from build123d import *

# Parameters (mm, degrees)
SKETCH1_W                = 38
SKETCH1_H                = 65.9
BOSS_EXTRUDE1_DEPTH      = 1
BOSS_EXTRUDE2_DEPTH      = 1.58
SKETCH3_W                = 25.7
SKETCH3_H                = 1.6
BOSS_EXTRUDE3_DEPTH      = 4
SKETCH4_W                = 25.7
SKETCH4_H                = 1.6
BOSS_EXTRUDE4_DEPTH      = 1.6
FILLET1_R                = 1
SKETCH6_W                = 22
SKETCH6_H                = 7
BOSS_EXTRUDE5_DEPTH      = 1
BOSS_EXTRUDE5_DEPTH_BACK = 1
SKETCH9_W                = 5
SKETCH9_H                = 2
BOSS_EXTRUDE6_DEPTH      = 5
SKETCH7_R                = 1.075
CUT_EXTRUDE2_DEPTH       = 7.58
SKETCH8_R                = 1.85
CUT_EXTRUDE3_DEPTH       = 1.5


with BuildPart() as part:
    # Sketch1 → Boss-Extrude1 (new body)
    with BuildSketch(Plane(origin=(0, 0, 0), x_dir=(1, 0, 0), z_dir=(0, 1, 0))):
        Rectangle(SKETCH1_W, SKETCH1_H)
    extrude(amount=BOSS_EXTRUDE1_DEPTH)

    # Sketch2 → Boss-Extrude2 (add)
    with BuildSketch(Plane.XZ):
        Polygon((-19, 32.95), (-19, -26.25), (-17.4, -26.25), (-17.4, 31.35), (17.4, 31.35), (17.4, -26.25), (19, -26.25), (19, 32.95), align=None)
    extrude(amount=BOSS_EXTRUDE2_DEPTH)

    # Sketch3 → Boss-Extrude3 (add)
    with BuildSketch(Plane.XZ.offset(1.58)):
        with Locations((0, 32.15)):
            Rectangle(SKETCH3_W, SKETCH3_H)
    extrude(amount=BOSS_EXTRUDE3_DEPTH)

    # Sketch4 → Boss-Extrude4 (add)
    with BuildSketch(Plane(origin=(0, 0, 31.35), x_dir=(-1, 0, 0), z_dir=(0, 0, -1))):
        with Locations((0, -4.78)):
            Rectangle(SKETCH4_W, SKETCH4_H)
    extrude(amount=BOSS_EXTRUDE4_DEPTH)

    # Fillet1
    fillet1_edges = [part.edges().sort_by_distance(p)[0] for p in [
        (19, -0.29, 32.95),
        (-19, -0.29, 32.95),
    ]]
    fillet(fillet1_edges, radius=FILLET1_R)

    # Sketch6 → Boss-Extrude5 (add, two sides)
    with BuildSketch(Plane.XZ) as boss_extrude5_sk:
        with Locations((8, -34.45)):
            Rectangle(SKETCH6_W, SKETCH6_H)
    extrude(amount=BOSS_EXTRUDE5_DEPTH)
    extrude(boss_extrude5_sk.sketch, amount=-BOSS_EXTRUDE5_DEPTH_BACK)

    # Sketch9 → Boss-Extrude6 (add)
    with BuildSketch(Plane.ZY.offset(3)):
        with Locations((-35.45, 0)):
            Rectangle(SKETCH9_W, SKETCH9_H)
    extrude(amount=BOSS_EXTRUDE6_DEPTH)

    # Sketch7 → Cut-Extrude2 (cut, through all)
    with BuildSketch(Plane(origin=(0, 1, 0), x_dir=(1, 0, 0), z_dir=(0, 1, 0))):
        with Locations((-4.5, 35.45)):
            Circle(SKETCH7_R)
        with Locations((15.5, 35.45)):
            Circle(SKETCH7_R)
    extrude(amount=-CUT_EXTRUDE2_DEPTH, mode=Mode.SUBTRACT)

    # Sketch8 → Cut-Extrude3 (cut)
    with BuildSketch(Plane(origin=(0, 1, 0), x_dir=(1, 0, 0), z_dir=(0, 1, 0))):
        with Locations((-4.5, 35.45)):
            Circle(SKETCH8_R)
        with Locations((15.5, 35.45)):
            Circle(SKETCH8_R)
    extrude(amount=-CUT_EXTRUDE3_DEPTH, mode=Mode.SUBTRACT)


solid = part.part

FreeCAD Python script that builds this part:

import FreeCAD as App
import Part
import Sketcher

V = App.Vector


def edges_at(feature, points):
    """Names of the edges that pass closest to the given points."""
    edges = feature.Shape.Edges
    near = lambda p: min(range(len(edges)), key=lambda i: edges[i].distToShape(Part.Vertex(*p))[0])
    return sorted({f"Edge{near(p) + 1}" for p in points})

doc = App.newDocument("Part")
params = doc.addObject("Spreadsheet::Sheet", "Params")
for row, (alias, value) in enumerate([
    ("sketch1_width", "38 mm"),
    ("sketch1_height", "65.9 mm"),
    ("pad1_length", "1 mm"),
    ("sketch2_width", "38 mm"),
    ("sketch2_width2", "1.6 mm"),
    ("sketch2_height", "59.2 mm"),
    ("sketch2_height2", "57.6 mm"),
    ("pad2_length", "1.58 mm"),
    ("sketch3_width", "25.7 mm"),
    ("sketch3_height", "1.6 mm"),
    ("pad3_length", "4 mm"),
    ("sketch4_width", "25.7 mm"),
    ("sketch4_height", "1.6 mm"),
    ("pad4_length", "1.6 mm"),
    ("fillet_radius", "1 mm"),
    ("sketch5_width", "22 mm"),
    ("sketch5_height", "7 mm"),
    ("pad5_length", "1 mm"),
    ("pad5_length2", "1 mm"),
    ("sketch6_width", "2 mm"),
    ("sketch6_height", "5 mm"),
    ("pad6_length", "5 mm"),
    ("sketch7_diameter", "2.15 mm"),
    ("sketch8_diameter", "3.7 mm"),
    ("pocket2_length", "1.5 mm"),
], start=1):
    params.set(f"A{row}", alias)
    params.set(f"B{row}", "=" + value)
    params.setAlias(f"B{row}", alias)

body = doc.addObject("PartDesign::Body", "Body")

sketch1 = body.newObject("Sketcher::SketchObject", "Sketch")
sketch1.AttachmentSupport = (doc.getObject("XZ_Plane"), [""])
sketch1.MapMode = "FlatFace"
sketch1.addGeometry(Part.LineSegment(V(-19, -33, 0), V(-19, 33, 0)), False)
sketch1.addGeometry(Part.LineSegment(V(-19, 33, 0), V(19, 33, 0)), False)
sketch1.addGeometry(Part.LineSegment(V(19, 33, 0), V(19, -33, 0)), False)
sketch1.addGeometry(Part.LineSegment(V(19, -33, 0), V(-19, -33, 0)), False)
sketch1.addConstraint(Sketcher.Constraint("Coincident", 0, 2, 1, 1))
sketch1.addConstraint(Sketcher.Constraint("Coincident", 1, 2, 2, 1))
sketch1.addConstraint(Sketcher.Constraint("Coincident", 2, 2, 3, 1))
sketch1.addConstraint(Sketcher.Constraint("Coincident", 3, 2, 0, 1))
sketch1.addConstraint(Sketcher.Constraint("Vertical", 0))
sketch1.addConstraint(Sketcher.Constraint("Horizontal", 1))
sketch1.addConstraint(Sketcher.Constraint("Vertical", 2))
sketch1.addConstraint(Sketcher.Constraint("Horizontal", 3))
sketch1.addConstraint(Sketcher.Constraint("Symmetric", 0, 2, 2, 2, -1, 1))
sketch1.addConstraint(Sketcher.Constraint("DistanceX", 1, 1, 1, 2, 38.0))
sketch1.addConstraint(Sketcher.Constraint("DistanceY", 0, 1, 0, 2, 65.9))
sketch1.setExpression("Constraints[9]", "Params.sketch1_width")
sketch1.setExpression("Constraints[10]", "Params.sketch1_height")
pad1 = body.newObject("PartDesign::Pad", "Pad")
pad1.Profile = sketch1
pad1.setExpression("Length", "Params.pad1_length")
pad1.Reversed = True

sketch2 = body.newObject("Sketcher::SketchObject", "Sketch001")
sketch2.AttachmentSupport = (doc.getObject("XZ_Plane"), [""])
sketch2.MapMode = "FlatFace"
sketch2.addGeometry(Part.LineSegment(V(-19, 33, 0), V(-19, -26.2, 0)), False)
sketch2.addGeometry(Part.LineSegment(V(-19, -26.2, 0), V(-17.4, -26.2, 0)), False)
sketch2.addGeometry(Part.LineSegment(V(-17.4, -26.2, 0), V(-17.4, 31.4, 0)), False)
sketch2.addGeometry(Part.LineSegment(V(-17.4, 31.4, 0), V(17.4, 31.4, 0)), False)
sketch2.addGeometry(Part.LineSegment(V(17.4, 31.4, 0), V(17.4, -26.2, 0)), False)
sketch2.addGeometry(Part.LineSegment(V(17.4, -26.2, 0), V(19, -26.2, 0)), False)
sketch2.addGeometry(Part.LineSegment(V(19, -26.2, 0), V(19, 33, 0)), False)
sketch2.addGeometry(Part.LineSegment(V(19, 33, 0), V(-19, 33, 0)), False)
sketch2.addConstraint(Sketcher.Constraint("Coincident", 0, 2, 1, 1))
sketch2.addConstraint(Sketcher.Constraint("Coincident", 1, 2, 2, 1))
sketch2.addConstraint(Sketcher.Constraint("Coincident", 2, 2, 3, 1))
sketch2.addConstraint(Sketcher.Constraint("Coincident", 3, 2, 4, 1))
sketch2.addConstraint(Sketcher.Constraint("Coincident", 4, 2, 5, 1))
sketch2.addConstraint(Sketcher.Constraint("Coincident", 5, 2, 6, 1))
sketch2.addConstraint(Sketcher.Constraint("Coincident", 6, 2, 7, 1))
sketch2.addConstraint(Sketcher.Constraint("Coincident", 7, 2, 0, 1))
sketch2.addConstraint(Sketcher.Constraint("Vertical", 0))
sketch2.addConstraint(Sketcher.Constraint("Horizontal", 1))
sketch2.addConstraint(Sketcher.Constraint("Vertical", 2))
sketch2.addConstraint(Sketcher.Constraint("Horizontal", 3))
sketch2.addConstraint(Sketcher.Constraint("Vertical", 4))
sketch2.addConstraint(Sketcher.Constraint("Horizontal", 5))
sketch2.addConstraint(Sketcher.Constraint("Vertical", 6))
sketch2.addConstraint(Sketcher.Constraint("Horizontal", 7))
sketch2.addConstraint(Sketcher.Constraint("Symmetric", 1, 2, 4, 2, -2))
sketch2.addConstraint(Sketcher.Constraint("Equal", 1, 5))
sketch2.addConstraint(Sketcher.Constraint("DistanceX", 7, 2, 7, 1, 38.0))
sketch2.addConstraint(Sketcher.Constraint("DistanceX", 1, 1, 1, 2, 1.6))
sketch2.addConstraint(Sketcher.Constraint("DistanceY", 0, 2, 0, 1, 59.2))
sketch2.addConstraint(Sketcher.Constraint("DistanceY", 2, 1, 2, 2, 57.6))
sketch2.addConstraint(Sketcher.Constraint("DistanceY", 0, 2, -1, 1, 26.25))
sketch2.setExpression("Constraints[18]", "Params.sketch2_width")
sketch2.setExpression("Constraints[19]", "Params.sketch2_width2")
sketch2.setExpression("Constraints[20]", "Params.sketch2_height")
sketch2.setExpression("Constraints[21]", "Params.sketch2_height2")
pad2 = body.newObject("PartDesign::Pad", "Pad001")
pad2.Profile = sketch2
pad2.setExpression("Length", "Params.pad2_length")

sketch3 = body.newObject("Sketcher::SketchObject", "Sketch002")
sketch3.AttachmentSupport = (doc.getObject("XZ_Plane"), [""])
sketch3.MapMode = "FlatFace"
sketch3.AttachmentOffset = App.Placement(V(0, 0, 1.58), App.Rotation())
sketch3.addGeometry(Part.LineSegment(V(-12.8, 33, 0), V(-12.8, 31.4, 0)), False)
sketch3.addGeometry(Part.LineSegment(V(-12.8, 31.4, 0), V(12.8, 31.4, 0)), False)
sketch3.addGeometry(Part.LineSegment(V(12.8, 31.4, 0), V(12.8, 33, 0)), False)
sketch3.addGeometry(Part.LineSegment(V(12.8, 33, 0), V(-12.8, 33, 0)), False)
sketch3.addConstraint(Sketcher.Constraint("Coincident", 0, 2, 1, 1))
sketch3.addConstraint(Sketcher.Constraint("Coincident", 1, 2, 2, 1))
sketch3.addConstraint(Sketcher.Constraint("Coincident", 2, 2, 3, 1))
sketch3.addConstraint(Sketcher.Constraint("Coincident", 3, 2, 0, 1))
sketch3.addConstraint(Sketcher.Constraint("Vertical", 0))
sketch3.addConstraint(Sketcher.Constraint("Horizontal", 1))
sketch3.addConstraint(Sketcher.Constraint("Vertical", 2))
sketch3.addConstraint(Sketcher.Constraint("Horizontal", 3))
sketch3.addConstraint(Sketcher.Constraint("DistanceX", 1, 1, 1, 2, 25.7))
sketch3.addConstraint(Sketcher.Constraint("DistanceY", 0, 2, 0, 1, 1.6))
sketch3.addConstraint(Sketcher.Constraint("DistanceX", 0, 2, -1, 1, 12.85))
sketch3.addConstraint(Sketcher.Constraint("DistanceY", -1, 1, 0, 2, 31.35))
sketch3.setExpression("Constraints[8]", "Params.sketch3_width")
sketch3.setExpression("Constraints[9]", "Params.sketch3_height")
pad3 = body.newObject("PartDesign::Pad", "Pad002")
pad3.Profile = sketch3
pad3.setExpression("Length", "Params.pad3_length")

sketch4 = body.newObject("Sketcher::SketchObject", "Sketch003")
sketch4.AttachmentSupport = (doc.getObject("XY_Plane"), [""])
sketch4.MapMode = "FlatFace"
sketch4.AttachmentOffset = App.Placement(V(0, 0, 31.35), App.Rotation())
sketch4.addGeometry(Part.LineSegment(V(12.8, -4, 0), V(12.8, -5.6, 0)), False)
sketch4.addGeometry(Part.LineSegment(V(12.8, -5.6, 0), V(-12.8, -5.6, 0)), False)
sketch4.addGeometry(Part.LineSegment(V(-12.8, -5.6, 0), V(-12.8, -4, 0)), False)
sketch4.addGeometry(Part.LineSegment(V(-12.8, -4, 0), V(12.8, -4, 0)), False)
sketch4.addConstraint(Sketcher.Constraint("Coincident", 0, 2, 1, 1))
sketch4.addConstraint(Sketcher.Constraint("Coincident", 1, 2, 2, 1))
sketch4.addConstraint(Sketcher.Constraint("Coincident", 2, 2, 3, 1))
sketch4.addConstraint(Sketcher.Constraint("Coincident", 3, 2, 0, 1))
sketch4.addConstraint(Sketcher.Constraint("Vertical", 0))
sketch4.addConstraint(Sketcher.Constraint("Horizontal", 1))
sketch4.addConstraint(Sketcher.Constraint("Vertical", 2))
sketch4.addConstraint(Sketcher.Constraint("Horizontal", 3))
sketch4.addConstraint(Sketcher.Constraint("DistanceX", 1, 2, 1, 1, 25.7))
sketch4.addConstraint(Sketcher.Constraint("DistanceY", 0, 2, 0, 1, 1.6))
sketch4.addConstraint(Sketcher.Constraint("DistanceX", -1, 1, 0, 2, 12.85))
sketch4.addConstraint(Sketcher.Constraint("DistanceY", 0, 2, -1, 1, 5.58))
sketch4.setExpression("Constraints[8]", "Params.sketch4_width")
sketch4.setExpression("Constraints[9]", "Params.sketch4_height")
pad4 = body.newObject("PartDesign::Pad", "Pad003")
pad4.Profile = sketch4
pad4.setExpression("Length", "Params.pad4_length")
pad4.Reversed = True
doc.recompute()

fillet = body.newObject("PartDesign::Fillet", "Fillet")
fillet.Base = (pad4, edges_at(pad4, [(19, -0.29, 32.95), (-19, -0.29, 32.95)]))
fillet.setExpression("Radius", "Params.fillet_radius")

sketch5 = body.newObject("Sketcher::SketchObject", "Sketch004")
sketch5.AttachmentSupport = (doc.getObject("XZ_Plane"), [""])
sketch5.MapMode = "FlatFace"
sketch5.addGeometry(Part.LineSegment(V(-3, -31, 0), V(-3, -38, 0)), False)
sketch5.addGeometry(Part.LineSegment(V(-3, -38, 0), V(19, -38, 0)), False)
sketch5.addGeometry(Part.LineSegment(V(19, -38, 0), V(19, -31, 0)), False)
sketch5.addGeometry(Part.LineSegment(V(19, -31, 0), V(-3, -31, 0)), False)
sketch5.addConstraint(Sketcher.Constraint("Coincident", 0, 2, 1, 1))
sketch5.addConstraint(Sketcher.Constraint("Coincident", 1, 2, 2, 1))
sketch5.addConstraint(Sketcher.Constraint("Coincident", 2, 2, 3, 1))
sketch5.addConstraint(Sketcher.Constraint("Coincident", 3, 2, 0, 1))
sketch5.addConstraint(Sketcher.Constraint("Vertical", 0))
sketch5.addConstraint(Sketcher.Constraint("Horizontal", 1))
sketch5.addConstraint(Sketcher.Constraint("Vertical", 2))
sketch5.addConstraint(Sketcher.Constraint("Horizontal", 3))
sketch5.addConstraint(Sketcher.Constraint("DistanceX", 1, 1, 1, 2, 22.0))
sketch5.addConstraint(Sketcher.Constraint("DistanceY", 0, 2, 0, 1, 7.0))
sketch5.addConstraint(Sketcher.Constraint("DistanceX", 0, 2, -1, 1, 3.0))
sketch5.addConstraint(Sketcher.Constraint("DistanceY", 0, 2, -1, 1, 37.95))
sketch5.setExpression("Constraints[8]", "Params.sketch5_width")
sketch5.setExpression("Constraints[9]", "Params.sketch5_height")
pad5 = body.newObject("PartDesign::Pad", "Pad004")
pad5.Profile = sketch5
pad5.Type = "TwoLengths"
pad5.setExpression("Length", "Params.pad5_length")
pad5.setExpression("Length2", "Params.pad5_length2")

sketch6 = body.newObject("Sketcher::SketchObject", "Sketch005")
sketch6.AttachmentSupport = (doc.getObject("YZ_Plane"), [""])
sketch6.MapMode = "FlatFace"
sketch6.AttachmentOffset = App.Placement(V(0, 0, -3), App.Rotation())
sketch6.addGeometry(Part.LineSegment(V(1, -38, 0), V(-1, -38, 0)), False)
sketch6.addGeometry(Part.LineSegment(V(-1, -38, 0), V(-1, -33, 0)), False)
sketch6.addGeometry(Part.LineSegment(V(-1, -33, 0), V(1, -33, 0)), False)
sketch6.addGeometry(Part.LineSegment(V(1, -33, 0), V(1, -38, 0)), False)
sketch6.addConstraint(Sketcher.Constraint("Coincident", 0, 2, 1, 1))
sketch6.addConstraint(Sketcher.Constraint("Coincident", 1, 2, 2, 1))
sketch6.addConstraint(Sketcher.Constraint("Coincident", 2, 2, 3, 1))
sketch6.addConstraint(Sketcher.Constraint("Coincident", 3, 2, 0, 1))
sketch6.addConstraint(Sketcher.Constraint("Horizontal", 0))
sketch6.addConstraint(Sketcher.Constraint("Vertical", 1))
sketch6.addConstraint(Sketcher.Constraint("Horizontal", 2))
sketch6.addConstraint(Sketcher.Constraint("Vertical", 3))
sketch6.addConstraint(Sketcher.Constraint("DistanceX", 0, 2, 0, 1, 2.0))
sketch6.addConstraint(Sketcher.Constraint("DistanceY", 1, 1, 1, 2, 5.0))
sketch6.addConstraint(Sketcher.Constraint("DistanceX", 0, 2, -1, 1, 1.0))
sketch6.addConstraint(Sketcher.Constraint("DistanceY", 0, 2, -1, 1, 37.95))
sketch6.setExpression("Constraints[8]", "Params.sketch6_width")
sketch6.setExpression("Constraints[9]", "Params.sketch6_height")
pad6 = body.newObject("PartDesign::Pad", "Pad005")
pad6.Profile = sketch6
pad6.setExpression("Length", "Params.pad6_length")
pad6.Reversed = True

sketch7 = body.newObject("Sketcher::SketchObject", "Sketch006")
sketch7.AttachmentSupport = (doc.getObject("XZ_Plane"), [""])
sketch7.MapMode = "FlatFace"
sketch7.AttachmentOffset = App.Placement(V(0, 0, -1), App.Rotation())
sketch7.addGeometry(Part.Circle(V(-4.5, -35.5, 0), V(0, 0, 1), 1.1), False)
sketch7.addGeometry(Part.Circle(V(15.5, -35.5, 0), V(0, 0, 1), 1.1), False)
sketch7.addConstraint(Sketcher.Constraint("Equal", 0, 1))
sketch7.addConstraint(Sketcher.Constraint("Horizontal", 0, 3, 1, 3))
sketch7.addConstraint(Sketcher.Constraint("Diameter", 0, 2.15))
sketch7.addConstraint(Sketcher.Constraint("DistanceX", 0, 3, 1, 3, 20.0))
sketch7.addConstraint(Sketcher.Constraint("DistanceX", 0, 3, -1, 1, 4.5))
sketch7.addConstraint(Sketcher.Constraint("DistanceY", 0, 3, -1, 1, 35.45))
sketch7.setExpression("Constraints[2]", "Params.sketch7_diameter")
pocket1 = body.newObject("PartDesign::Pocket", "Pocket")
pocket1.Profile = sketch7
pocket1.Type = "ThroughAll"
pocket1.Reversed = True

sketch8 = body.newObject("Sketcher::SketchObject", "Sketch007")
sketch8.AttachmentSupport = (doc.getObject("XZ_Plane"), [""])
sketch8.MapMode = "FlatFace"
sketch8.AttachmentOffset = App.Placement(V(0, 0, -1), App.Rotation())
sketch8.addGeometry(Part.Circle(V(-4.5, -35.5, 0), V(0, 0, 1), 1.9), False)
sketch8.addGeometry(Part.Circle(V(15.5, -35.5, 0), V(0, 0, 1), 1.9), False)
sketch8.addConstraint(Sketcher.Constraint("Equal", 0, 1))
sketch8.addConstraint(Sketcher.Constraint("Horizontal", 0, 3, 1, 3))
sketch8.addConstraint(Sketcher.Constraint("Diameter", 0, 3.7))
sketch8.addConstraint(Sketcher.Constraint("DistanceX", 0, 3, 1, 3, 20.0))
sketch8.addConstraint(Sketcher.Constraint("DistanceX", 0, 3, -1, 1, 4.5))
sketch8.addConstraint(Sketcher.Constraint("DistanceY", 0, 3, -1, 1, 35.45))
sketch8.setExpression("Constraints[2]", "Params.sketch8_diameter")
pocket2 = body.newObject("PartDesign::Pocket", "Pocket001")
pocket2.Profile = sketch8
pocket2.setExpression("Length", "Params.pocket2_length")
pocket2.Reversed = True

doc.recompute()
